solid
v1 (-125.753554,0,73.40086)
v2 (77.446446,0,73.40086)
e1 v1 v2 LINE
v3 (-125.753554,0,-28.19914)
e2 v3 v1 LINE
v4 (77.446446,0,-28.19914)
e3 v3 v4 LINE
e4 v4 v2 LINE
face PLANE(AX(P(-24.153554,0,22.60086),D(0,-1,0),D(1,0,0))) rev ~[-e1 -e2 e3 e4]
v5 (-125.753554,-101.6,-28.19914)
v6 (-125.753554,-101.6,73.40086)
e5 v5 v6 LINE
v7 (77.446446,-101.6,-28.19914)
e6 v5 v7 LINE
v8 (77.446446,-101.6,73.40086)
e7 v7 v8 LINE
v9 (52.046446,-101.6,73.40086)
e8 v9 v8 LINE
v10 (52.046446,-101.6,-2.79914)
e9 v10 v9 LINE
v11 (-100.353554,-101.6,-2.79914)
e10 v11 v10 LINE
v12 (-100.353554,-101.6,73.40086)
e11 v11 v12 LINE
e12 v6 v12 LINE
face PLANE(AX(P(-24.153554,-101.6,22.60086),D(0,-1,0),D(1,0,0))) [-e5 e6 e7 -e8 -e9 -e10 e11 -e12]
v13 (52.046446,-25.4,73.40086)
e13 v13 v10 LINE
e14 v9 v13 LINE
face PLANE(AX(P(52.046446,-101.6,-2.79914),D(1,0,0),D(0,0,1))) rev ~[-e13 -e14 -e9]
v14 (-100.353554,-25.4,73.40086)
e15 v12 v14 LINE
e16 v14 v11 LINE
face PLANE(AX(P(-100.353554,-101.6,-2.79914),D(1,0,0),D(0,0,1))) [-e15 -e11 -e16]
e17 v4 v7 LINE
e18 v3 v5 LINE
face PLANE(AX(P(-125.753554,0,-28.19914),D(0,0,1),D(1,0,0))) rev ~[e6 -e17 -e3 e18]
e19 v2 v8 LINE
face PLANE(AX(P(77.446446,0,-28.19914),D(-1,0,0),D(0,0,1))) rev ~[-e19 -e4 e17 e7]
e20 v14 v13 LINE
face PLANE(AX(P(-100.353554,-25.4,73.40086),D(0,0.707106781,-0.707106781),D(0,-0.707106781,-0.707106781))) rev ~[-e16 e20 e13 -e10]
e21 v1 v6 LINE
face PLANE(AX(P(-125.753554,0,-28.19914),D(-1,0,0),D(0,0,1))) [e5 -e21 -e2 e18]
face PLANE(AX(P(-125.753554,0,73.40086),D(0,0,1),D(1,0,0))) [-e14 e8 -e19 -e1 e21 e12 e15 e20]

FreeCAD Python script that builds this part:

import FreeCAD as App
import Part
import Sketcher

V = App.Vector
Q = App.Units.Quantity


def add_polygon(sketch, points):
    """Adds a closed chain of lines whose ends are joined by coincident constraints."""
    first, n = sketch.GeometryCount, len(points)
    for a, b in zip(points, points[1:] + points[:1]):
        sketch.addGeometry(Part.LineSegment(App.Vector(*a, 0), App.Vector(*b, 0)), False)
    for i in range(n):
        sketch.addConstraint(Sketcher.Constraint("Coincident", first + i, 2, first + (i + 1) % n, 1))

doc = App.newDocument("Part")
body = doc.addObject("PartDesign::Body", "Body")

# Sketch on XZ plane
sketch1 = body.newObject("Sketcher::SketchObject", "Sketch")
sketch1.AttachmentSupport = (doc.getObject("XZ_Plane"), [""])
sketch1.MapMode = "FlatFace"
add_polygon(sketch1, [(-125.753554, 73.40086), (-125.753554, -28.19914), (77.446446, -28.19914), (77.446446, 73.40086)])  # lines 0-3
sketch1.addConstraint([
    Sketcher.Constraint("Vertical", 0),
    Sketcher.Constraint("Horizontal", 1),
    Sketcher.Constraint("Vertical", 2),
    Sketcher.Constraint("Horizontal", 3),
    Sketcher.Constraint("DistanceX", 1, 1, 1, 2, Q("8 in")),
    Sketcher.Constraint("DistanceY", 0, 2, 0, 1, Q("4 in")),
    Sketcher.Constraint("DistanceY", 0, 2, -1, 1, 28.19914),
    Sketcher.Constraint("DistanceX", 0, 2, -1, 1, 125.753554),
])
pad1 = body.newObject("PartDesign::Pad", "Pad")
pad1.Profile = sketch1
pad1.Length = Q("4 in")

# Sketch on XZ plane
sketch2 = body.newObject("Sketcher::SketchObject", "Sketch001")
sketch2.AttachmentSupport = (doc.getObject("XZ_Plane"), [""])
sketch2.MapMode = "FlatFace"
sketch2.AttachmentOffset = App.Placement(V(0, 0, 4 * 25.4), App.Rotation())
add_polygon(sketch2, [(-100.353554, 73.40086), (-100.353554, -2.79914), (52.046446, -2.79914), (52.046446, 73.40086)])  # lines 0-3
sketch2.addConstraint([
    Sketcher.Constraint("Vertical", 0),
    Sketcher.Constraint("Horizontal", 1),
    Sketcher.Constraint("Vertical", 2),
    Sketcher.Constraint("Horizontal", 3),
    Sketcher.Constraint("DistanceX", 1, 1, 1, 2, Q("6 in")),
    Sketcher.Constraint("DistanceY", 0, 2, 0, 1, Q("3 in")),
    Sketcher.Constraint("DistanceY", 0, 2, -1, 1, 2.79914),
    Sketcher.Constraint("DistanceX", 0, 2, -1, 1, 100.353554),
])
pocket1 = body.newObject("PartDesign::Pocket", "Pocket")
pocket1.Profile = sketch2
pocket1.Length = Q("3 in")

# Sketch on YZ plane
sketch3 = body.newObject("Sketcher::SketchObject", "Sketch002")
sketch3.AttachmentSupport = (doc.getObject("YZ_Plane"), [""])
sketch3.MapMode = "FlatFace"
sketch3.AttachmentOffset = App.Placement(V(0, 0, -100.353554), App.Rotation())
add_polygon(sketch3, [(-25.4, 73.40086), (-101.6, -2.79914), (-25.4, -2.79914)])  # lines 0-2
sketch3.addConstraint([
    Sketcher.Constraint("Horizontal", 1),
    Sketcher.Constraint("Vertical", 2),
    Sketcher.Constraint("Equal", 1, 2),
    Sketcher.Constraint("DistanceX", 1, 1, 1, 2, Q("3 in")),
    Sketcher.Constraint("DistanceX", 0, 2, -1, 1, Q("4 in")),
    Sketcher.Constraint("DistanceY", 0, 2, -1, 1, 2.79914),
])
pad2 = body.newObject("PartDesign::Pad", "Pad001")
pad2.Profile = sketch3
pad2.Length = Q("6 in")

doc.recompute()
